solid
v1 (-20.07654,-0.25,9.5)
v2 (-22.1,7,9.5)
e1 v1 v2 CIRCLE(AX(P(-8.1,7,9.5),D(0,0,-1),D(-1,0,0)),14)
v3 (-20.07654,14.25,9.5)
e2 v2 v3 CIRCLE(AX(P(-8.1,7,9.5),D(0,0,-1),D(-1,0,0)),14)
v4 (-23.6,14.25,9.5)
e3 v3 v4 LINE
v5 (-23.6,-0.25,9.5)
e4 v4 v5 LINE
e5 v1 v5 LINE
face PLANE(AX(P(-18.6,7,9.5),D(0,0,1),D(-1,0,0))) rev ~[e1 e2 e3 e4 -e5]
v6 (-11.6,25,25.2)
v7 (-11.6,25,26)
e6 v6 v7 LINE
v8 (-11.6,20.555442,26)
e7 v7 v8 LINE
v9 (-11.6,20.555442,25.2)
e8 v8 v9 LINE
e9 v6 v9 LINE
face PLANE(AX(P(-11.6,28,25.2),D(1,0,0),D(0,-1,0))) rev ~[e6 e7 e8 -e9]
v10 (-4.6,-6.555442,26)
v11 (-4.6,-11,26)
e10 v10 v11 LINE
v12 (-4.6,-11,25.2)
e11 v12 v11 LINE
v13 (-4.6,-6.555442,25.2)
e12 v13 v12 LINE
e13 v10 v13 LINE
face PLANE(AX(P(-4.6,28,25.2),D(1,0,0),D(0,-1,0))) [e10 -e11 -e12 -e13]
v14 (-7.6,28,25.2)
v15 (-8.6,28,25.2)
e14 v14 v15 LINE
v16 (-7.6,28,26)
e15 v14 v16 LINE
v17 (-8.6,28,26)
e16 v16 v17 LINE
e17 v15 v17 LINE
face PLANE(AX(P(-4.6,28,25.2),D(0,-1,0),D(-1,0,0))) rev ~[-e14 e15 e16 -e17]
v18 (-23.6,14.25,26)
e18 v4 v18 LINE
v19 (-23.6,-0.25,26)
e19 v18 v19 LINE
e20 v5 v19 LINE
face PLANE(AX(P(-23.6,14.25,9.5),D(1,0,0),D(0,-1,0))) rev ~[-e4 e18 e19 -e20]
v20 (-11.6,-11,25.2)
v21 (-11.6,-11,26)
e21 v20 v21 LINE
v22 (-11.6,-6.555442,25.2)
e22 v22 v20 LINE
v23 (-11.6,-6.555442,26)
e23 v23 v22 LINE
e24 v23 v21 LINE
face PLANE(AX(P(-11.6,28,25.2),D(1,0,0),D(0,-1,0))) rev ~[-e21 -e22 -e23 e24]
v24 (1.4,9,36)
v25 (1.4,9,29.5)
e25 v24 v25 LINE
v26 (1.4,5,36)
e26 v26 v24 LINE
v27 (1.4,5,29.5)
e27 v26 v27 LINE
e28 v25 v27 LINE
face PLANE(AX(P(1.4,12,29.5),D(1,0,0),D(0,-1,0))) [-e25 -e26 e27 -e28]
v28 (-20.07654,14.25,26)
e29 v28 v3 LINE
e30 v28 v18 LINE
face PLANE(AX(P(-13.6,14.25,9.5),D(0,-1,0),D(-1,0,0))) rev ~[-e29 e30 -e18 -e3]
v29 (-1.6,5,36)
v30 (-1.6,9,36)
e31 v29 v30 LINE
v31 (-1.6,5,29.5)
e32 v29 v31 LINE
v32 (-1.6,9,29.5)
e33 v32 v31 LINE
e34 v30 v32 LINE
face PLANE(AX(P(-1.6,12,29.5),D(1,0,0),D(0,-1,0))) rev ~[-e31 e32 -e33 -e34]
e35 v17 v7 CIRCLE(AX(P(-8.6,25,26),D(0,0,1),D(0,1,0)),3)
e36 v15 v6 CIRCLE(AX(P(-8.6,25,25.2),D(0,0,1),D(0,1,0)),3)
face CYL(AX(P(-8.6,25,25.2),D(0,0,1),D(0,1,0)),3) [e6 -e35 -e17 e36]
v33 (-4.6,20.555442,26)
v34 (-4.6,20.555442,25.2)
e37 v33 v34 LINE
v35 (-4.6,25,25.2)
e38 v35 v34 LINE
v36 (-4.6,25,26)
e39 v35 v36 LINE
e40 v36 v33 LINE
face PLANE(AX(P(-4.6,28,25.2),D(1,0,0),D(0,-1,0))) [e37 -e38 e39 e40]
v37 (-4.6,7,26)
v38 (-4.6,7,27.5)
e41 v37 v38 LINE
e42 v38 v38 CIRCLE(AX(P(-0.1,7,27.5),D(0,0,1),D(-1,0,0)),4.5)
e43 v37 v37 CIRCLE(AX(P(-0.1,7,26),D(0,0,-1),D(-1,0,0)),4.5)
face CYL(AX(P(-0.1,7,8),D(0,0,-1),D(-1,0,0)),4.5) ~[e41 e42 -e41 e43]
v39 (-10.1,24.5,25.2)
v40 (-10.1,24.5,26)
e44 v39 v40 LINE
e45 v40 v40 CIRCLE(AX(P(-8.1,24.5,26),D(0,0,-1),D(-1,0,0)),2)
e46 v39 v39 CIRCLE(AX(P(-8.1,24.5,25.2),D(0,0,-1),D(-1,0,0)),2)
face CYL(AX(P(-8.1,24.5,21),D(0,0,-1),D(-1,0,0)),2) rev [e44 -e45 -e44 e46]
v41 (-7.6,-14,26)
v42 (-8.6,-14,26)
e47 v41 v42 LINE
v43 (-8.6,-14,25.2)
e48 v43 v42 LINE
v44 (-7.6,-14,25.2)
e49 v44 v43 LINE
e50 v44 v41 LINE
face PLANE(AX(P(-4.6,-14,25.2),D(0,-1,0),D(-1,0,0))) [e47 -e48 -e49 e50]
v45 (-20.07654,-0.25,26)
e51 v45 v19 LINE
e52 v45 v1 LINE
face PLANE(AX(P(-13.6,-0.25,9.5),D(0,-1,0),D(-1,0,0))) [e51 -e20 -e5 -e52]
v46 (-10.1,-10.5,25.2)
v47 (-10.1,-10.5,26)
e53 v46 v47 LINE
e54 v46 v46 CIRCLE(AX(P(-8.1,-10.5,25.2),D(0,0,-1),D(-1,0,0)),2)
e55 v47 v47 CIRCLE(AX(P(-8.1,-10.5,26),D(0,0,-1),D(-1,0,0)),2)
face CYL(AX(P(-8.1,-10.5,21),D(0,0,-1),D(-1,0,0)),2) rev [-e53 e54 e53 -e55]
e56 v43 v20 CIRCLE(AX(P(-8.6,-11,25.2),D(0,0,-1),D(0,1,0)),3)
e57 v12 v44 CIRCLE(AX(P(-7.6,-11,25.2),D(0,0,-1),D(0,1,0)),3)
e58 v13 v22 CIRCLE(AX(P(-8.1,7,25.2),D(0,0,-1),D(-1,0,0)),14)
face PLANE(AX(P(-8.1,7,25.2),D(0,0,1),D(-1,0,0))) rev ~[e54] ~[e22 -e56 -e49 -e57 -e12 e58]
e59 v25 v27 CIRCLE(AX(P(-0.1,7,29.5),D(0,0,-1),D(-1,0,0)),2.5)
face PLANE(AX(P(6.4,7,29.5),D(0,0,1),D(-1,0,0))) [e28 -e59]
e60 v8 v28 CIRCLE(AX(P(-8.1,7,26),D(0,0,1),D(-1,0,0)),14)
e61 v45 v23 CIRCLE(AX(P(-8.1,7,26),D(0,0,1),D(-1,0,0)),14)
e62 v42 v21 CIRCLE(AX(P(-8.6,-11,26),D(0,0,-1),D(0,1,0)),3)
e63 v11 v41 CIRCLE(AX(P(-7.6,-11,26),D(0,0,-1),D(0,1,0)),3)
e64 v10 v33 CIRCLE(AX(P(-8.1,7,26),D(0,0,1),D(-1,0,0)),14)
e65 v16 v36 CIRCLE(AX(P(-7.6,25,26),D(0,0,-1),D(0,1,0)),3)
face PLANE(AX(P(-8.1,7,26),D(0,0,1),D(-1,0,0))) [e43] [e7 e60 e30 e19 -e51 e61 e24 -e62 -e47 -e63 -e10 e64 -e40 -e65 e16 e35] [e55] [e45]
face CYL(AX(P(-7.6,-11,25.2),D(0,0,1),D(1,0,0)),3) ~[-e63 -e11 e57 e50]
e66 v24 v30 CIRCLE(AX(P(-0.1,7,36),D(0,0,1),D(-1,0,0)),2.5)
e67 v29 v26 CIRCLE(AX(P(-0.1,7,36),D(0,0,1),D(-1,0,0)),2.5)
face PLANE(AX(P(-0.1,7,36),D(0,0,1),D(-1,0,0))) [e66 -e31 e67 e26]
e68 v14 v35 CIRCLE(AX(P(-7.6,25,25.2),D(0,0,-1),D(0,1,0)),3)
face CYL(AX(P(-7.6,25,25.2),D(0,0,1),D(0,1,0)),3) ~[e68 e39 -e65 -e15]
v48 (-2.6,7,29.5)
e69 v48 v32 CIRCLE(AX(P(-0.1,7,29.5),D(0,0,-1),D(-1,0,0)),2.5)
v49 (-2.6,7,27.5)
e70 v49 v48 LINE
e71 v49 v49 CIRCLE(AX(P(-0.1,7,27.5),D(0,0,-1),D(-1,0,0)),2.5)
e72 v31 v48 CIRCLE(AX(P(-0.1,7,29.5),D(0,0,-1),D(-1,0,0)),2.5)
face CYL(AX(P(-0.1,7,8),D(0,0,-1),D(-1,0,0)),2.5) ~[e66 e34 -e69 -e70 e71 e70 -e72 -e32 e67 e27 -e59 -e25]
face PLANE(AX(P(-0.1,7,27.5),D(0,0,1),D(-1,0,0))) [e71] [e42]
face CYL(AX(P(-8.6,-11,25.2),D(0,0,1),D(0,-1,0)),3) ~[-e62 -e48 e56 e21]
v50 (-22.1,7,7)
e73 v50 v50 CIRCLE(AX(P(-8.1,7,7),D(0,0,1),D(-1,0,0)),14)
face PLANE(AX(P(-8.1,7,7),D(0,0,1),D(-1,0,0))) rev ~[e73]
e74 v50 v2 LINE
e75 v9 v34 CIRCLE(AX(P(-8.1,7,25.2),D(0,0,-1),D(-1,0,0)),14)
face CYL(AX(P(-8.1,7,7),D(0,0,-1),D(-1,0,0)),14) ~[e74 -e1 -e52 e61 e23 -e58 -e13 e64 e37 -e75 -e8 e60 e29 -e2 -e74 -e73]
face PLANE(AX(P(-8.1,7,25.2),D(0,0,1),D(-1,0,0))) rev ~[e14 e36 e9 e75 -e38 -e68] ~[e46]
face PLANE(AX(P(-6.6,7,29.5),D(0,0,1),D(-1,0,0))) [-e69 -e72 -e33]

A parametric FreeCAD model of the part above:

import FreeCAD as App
import Part
import Sketcher

V = App.Vector
Q = App.Units.Quantity


def edges_at(feature, points):
    """Names of the edges that pass closest to the given points."""
    edges = feature.Shape.Edges
    near = lambda p: min(range(len(edges)), key=lambda i: edges[i].distToShape(Part.Vertex(*p))[0])
    return sorted({f"Edge{near(p) + 1}" for p in points})


def add_polygon(sketch, points):
    """Adds a closed chain of lines whose ends are joined by coincident constraints."""
    first, n = sketch.GeometryCount, len(points)
    for a, b in zip(points, points[1:] + points[:1]):
        sketch.addGeometry(Part.LineSegment(App.Vector(*a, 0), App.Vector(*b, 0)), False)
    for i in range(n):
        sketch.addConstraint(Sketcher.Constraint("Coincident", first + i, 2, first + (i + 1) % n, 1))

doc = App.newDocument("Part")
params = doc.addObject("Spreadsheet::Sheet", "Params")
for row, (alias, value) in enumerate([
    ("sketch1_diameter", "4 mm"),
    ("pad1_length", "20 mm"),
    ("sketch2_diameter", "4 mm"),
    ("pad2_length", "20 mm"),
    ("sketch3_diameter", "9 mm"),
    ("pad3_length", "19.5 mm"),
    ("sketch4_width", "7 mm"),
    ("sketch4_height", "42 mm"),
    ("pad4_length", "0.8 mm"),
    ("fillet_radius", "3 mm"),
    ("fillet2_radius", "3 mm"),
    ("fillet3_radius", "3 mm"),
    ("fillet4_radius", "3 mm"),
    ("sketch5_width", "10 mm"),
    ("sketch5_height", "14.5 mm"),
    ("pad5_length", "16.5 mm"),
    ("sketch6_diameter", "28 mm"),
    ("pad6_length", "19 mm"),
    ("sketch7_width", "10 mm"),
    ("pad7_length", "10 mm"),
    ("sketch8_width", "10 mm"),
    ("pad8_length", "10 mm"),
    ("sketch9_diameter", "5 mm"),
    ("pad9_length", "28 mm"),
], start=1):
    params.set(f"A{row}", alias)
    params.set(f"B{row}", "=" + value)
    params.setAlias(f"B{row}", alias)

body = doc.addObject("PartDesign::Body", "Body")

# Sketch on XY plane
sketch1 = doc.addObject("Sketcher::SketchObject", "Sketch")
body.addObject(sketch1)
sketch1.AttachmentSupport = (doc.XY_Plane, [""])
sketch1.MapMode = "FlatFace"
sketch1.AttachmentOffset = App.Placement(V(0, 0, 14), App.Rotation())
sketch1.addGeometry(Part.Circle(V(0, -17.5, 0), V(0, 0, 1), 2), False)
sketch1.addConstraint([
    Sketcher.Constraint("PointOnObject", 0, 3, -2),
    Sketcher.Constraint("Diameter", 0, Q("4 mm")),
    Sketcher.Constraint("DistanceY", 0, 3, -1, 1, Q("17.5 mm")),
])
sketch1.setExpression("Constraints[1]", "Params.sketch1_diameter")
pad1 = doc.addObject("PartDesign::Pad", "Pad")
body.addObject(pad1)
pad1.Profile = sketch1
pad1.setExpression("Length", "Params.pad1_length")
body2 = doc.addObject("PartDesign::Body", "Body001")

# Sketch on XY plane
sketch2 = doc.addObject("Sketcher::SketchObject", "Sketch001")
body2.addObject(sketch2)
sketch2.AttachmentSupport = (doc.getObject("XY_Plane001"), [""])
sketch2.MapMode = "FlatFace"
sketch2.AttachmentOffset = App.Placement(V(0, 0, 14), App.Rotation())
sketch2.addGeometry(Part.Circle(V(0, 17.5, 0), V(0, 0, 1), 2), False)
sketch2.addConstraint([
    Sketcher.Constraint("PointOnObject", 0, 3, -2),
    Sketcher.Constraint("Diameter", 0, Q("4 mm")),
    Sketcher.Constraint("DistanceY", -1, 1, 0, 3, Q("17.5 mm")),
])
sketch2.setExpression("Constraints[1]", "Params.sketch2_diameter")
pad2 = doc.addObject("PartDesign::Pad", "Pad001")
body2.addObject(pad2)
pad2.Profile = sketch2
pad2.setExpression("Length", "Params.pad2_length")
body3 = doc.addObject("PartDesign::Body", "Body002")

# Sketch on XY plane
sketch3 = doc.addObject("Sketcher::SketchObject", "Sketch002")
body3.addObject(sketch3)
sketch3.AttachmentSupport = (doc.getObject("XY_Plane002"), [""])
sketch3.MapMode = "FlatFace"
sketch3.AttachmentOffset = App.Placement(V(0, 0, 1), App.Rotation())
sketch3.addGeometry(Part.Circle(V(-8, 0, 0), V(0, 0, 1), 4.5), False)
sketch3.addConstraint([
    Sketcher.Constraint("PointOnObject", 0, 3, -1),
    Sketcher.Constraint("Diameter", 0, Q("9 mm")),
    Sketcher.Constraint("DistanceX", 0, 3, -1, 1, Q("8 mm")),
])
sketch3.setExpression("Constraints[1]", "Params.sketch3_diameter")
pad3 = doc.addObject("PartDesign::Pad", "Pad002")
body3.addObject(pad3)
pad3.Profile = sketch3
pad3.setExpression("Length", "Params.pad3_length")
body4 = doc.addObject("PartDesign::Body", "Body003")

# Sketch on XY plane
sketch4 = doc.addObject("Sketcher::SketchObject", "Sketch003")
body4.addObject(sketch4)
sketch4.AttachmentSupport = (doc.getObject("XY_Plane003"), [""])
sketch4.MapMode = "FlatFace"
sketch4.AttachmentOffset = App.Placement(V(0, 0, 18.2), App.Rotation())
add_polygon(sketch4, [(-4, 21), (-4, -21), (4, -21), (4, 21)])  # lines 0-3
sketch4.addConstraint([
    Sketcher.Constraint("Vertical", 0),
    Sketcher.Constraint("Horizontal", 1),
    Sketcher.Constraint("Vertical", 2),
    Sketcher.Constraint("Horizontal", 3),
    Sketcher.Constraint("Symmetric", 0, 2, 2, 2, -1, 1),
    Sketcher.Constraint("DistanceX", 1, 1, 1, 2, Q("7 mm")),
    Sketcher.Constraint("DistanceY", 0, 2, 0, 1, Q("42 mm")),
])
sketch4.setExpression("Constraints[9]", "Params.sketch4_width")
sketch4.setExpression("Constraints[10]", "Params.sketch4_height")
pad4 = doc.addObject("PartDesign::Pad", "Pad003")
body4.addObject(pad4)
pad4.Profile = sketch4
pad4.setExpression("Length", "Params.pad4_length")
doc.recompute()

fillet = doc.addObject("PartDesign::Fillet", "Fillet")
body4.addObject(fillet)
fillet.Base = (pad4, edges_at(pad4, [(3.5, -21, 18.6)]))
fillet.setExpression("Radius", "Params.fillet_radius")
doc.recompute()

fillet2 = doc.addObject("PartDesign::Fillet", "Fillet001")
body4.addObject(fillet2)
fillet2.Base = (fillet, edges_at(fillet, [(-3.5, -21, 18.6)]))
fillet2.setExpression("Radius", "Params.fillet2_radius")
doc.recompute()

fillet3 = doc.addObject("PartDesign::Fillet", "Fillet002")
body4.addObject(fillet3)
fillet3.Base = (fillet2, edges_at(fillet2, [(-3.5, 21, 18.6)]))
fillet3.setExpression("Radius", "Params.fillet3_radius")
doc.recompute()

fillet4 = doc.addObject("PartDesign::Fillet", "Fillet003")
body4.addObject(fillet4)
fillet4.Base = (fillet3, edges_at(fillet3, [(3.5, 21, 18.6)]))
fillet4.setExpression("Radius", "Params.fillet4_radius")
body5 = doc.addObject("PartDesign::Body", "Body004")

# Sketch on XY plane
sketch5 = doc.addObject("Sketcher::SketchObject", "Sketch004")
body5.addObject(sketch5)
sketch5.AttachmentSupport = (doc.getObject("XY_Plane004"), [""])
sketch5.MapMode = "FlatFace"
sketch5.AttachmentOffset = App.Placement(V(0, 0, 2.5), App.Rotation())
add_polygon(sketch5, [(6, 7), (6, -7), (16, -7), (16, 7)])  # lines 0-3
sketch5.addConstraint([
    Sketcher.Constraint("Vertical", 0),
    Sketcher.Constraint("Horizontal", 1),
    Sketcher.Constraint("Vertical", 2),
    Sketcher.Constraint("Horizontal", 3),
    Sketcher.Constraint("DistanceX", 1, 1, 1, 2, Q("10 mm")),
    Sketcher.Constraint("DistanceY", 0, 2, 0, 1, Q("14.5 mm")),
    Sketcher.Constraint("DistanceX", -1, 1, 0, 2, Q("5.5 mm")),
    Sketcher.Constraint("DistanceY", 0, 2, -1, 1, Q("7.25 mm")),
])
sketch5.setExpression("Constraints[8]", "Params.sketch5_width")
sketch5.setExpression("Constraints[9]", "Params.sketch5_height")
pad5 = doc.addObject("PartDesign::Pad", "Pad004")
body5.addObject(pad5)
pad5.Profile = sketch5
pad5.setExpression("Length", "Params.pad5_length")
body6 = doc.addObject("PartDesign::Body", "Body005")

# Sketch on XY plane
sketch6 = doc.addObject("Sketcher::SketchObject", "Sketch005")
body6.addObject(sketch6)
sketch6.AttachmentSupport = (doc.getObject("XY_Plane005"), [""])
sketch6.MapMode = "FlatFace"
sketch6.addGeometry(Part.Circle(V(0, 0, 0), V(0, 0, 1), 14), False)
sketch6.addConstraint([
    Sketcher.Constraint("Coincident", 0, 3, -1, 1),
    Sketcher.Constraint("Diameter", 0, Q("28 mm")),
])
sketch6.setExpression("Constraints[1]", "Params.sketch6_diameter")
pad6 = doc.addObject("PartDesign::Pad", "Pad005")
body6.addObject(pad6)
pad6.Profile = sketch6
pad6.setExpression("Length", "Params.pad6_length")
doc.recompute()

boolean = doc.addObject("PartDesign::Boolean", "Boolean")
body6.addObject(boolean)
boolean.Type = "Fuse"
boolean.addObjects([body5])
doc.recompute()

boolean2 = doc.addObject("PartDesign::Boolean", "Boolean001")
body6.addObject(boolean2)
boolean2.Type = "Fuse"
boolean2.addObjects([body4])
doc.recompute()

boolean3 = doc.addObject("PartDesign::Boolean", "Boolean002")
body6.addObject(boolean3)
boolean3.Type = "Fuse"
boolean3.addObjects([body3])
doc.recompute()

boolean4 = doc.addObject("PartDesign::Boolean", "Boolean003")
body6.addObject(boolean4)
boolean4.Type = "Cut"
boolean4.addObjects([body2])
doc.recompute()

boolean5 = doc.addObject("PartDesign::Boolean", "Boolean004")
body6.addObject(boolean5)
boolean5.Type = "Cut"
boolean5.addObjects([body])
body7 = doc.addObject("PartDesign::Body", "Body006")

# Sketch on XY plane
sketch7 = doc.addObject("Sketcher::SketchObject", "Sketch006")
body7.addObject(sketch7)
sketch7.AttachmentSupport = (doc.getObject("XY_Plane006"), [""])
sketch7.MapMode = "FlatFace"
sketch7.AttachmentOffset = App.Placement(V(0, 0, 22.5), App.Rotation())
add_polygon(sketch7, [(-6, 5), (-6, -5), (4, -5), (4, 5)])  # lines 0-3
sketch7.addConstraint([
    Sketcher.Constraint("Vertical", 0),
    Sketcher.Constraint("Horizontal", 1),
    Sketcher.Constraint("Vertical", 2),
    Sketcher.Constraint("Horizontal", 3),
    Sketcher.Constraint("Equal", 3, 0),
    Sketcher.Constraint("DistanceX", 1, 1, 1, 2, Q("10 mm")),
    Sketcher.Constraint("DistanceY", 0, 2, -1, 1, Q("5 mm")),
    Sketcher.Constraint("DistanceX", 0, 2, -1, 1, Q("6.5 mm")),
])
sketch7.setExpression("Constraints[9]", "Params.sketch7_width")
pad7 = doc.addObject("PartDesign::Pad", "Pad006")
body7.addObject(pad7)
pad7.Profile = sketch7
pad7.setExpression("Length", "Params.pad7_length")
body8 = doc.addObject("PartDesign::Body", "Body007")

# Sketch on XY plane
sketch8 = doc.addObject("Sketcher::SketchObject", "Sketch007")
body8.addObject(sketch8)
sketch8.AttachmentSupport = (doc.getObject("XY_Plane007"), [""])
sketch8.MapMode = "FlatFace"
sketch8.AttachmentOffset = App.Placement(V(0, 0, 22.5), App.Rotation())
add_polygon(sketch8, [(-20, 5), (-20, -5), (-10, -5), (-10, 5)])  # lines 0-3
sketch8.addConstraint([
    Sketcher.Constraint("Vertical", 0),
    Sketcher.Constraint("Horizontal", 1),
    Sketcher.Constraint("Vertical", 2),
    Sketcher.Constraint("Horizontal", 3),
    Sketcher.Constraint("Equal", 3, 0),
    Sketcher.Constraint("DistanceX", 1, 1, 1, 2, Q("10 mm")),
    Sketcher.Constraint("DistanceY", 0, 2, -1, 1, Q("5 mm")),
    Sketcher.Constraint("DistanceX", 0, 2, -1, 1, Q("19.5 mm")),
])
sketch8.setExpression("Constraints[9]", "Params.sketch8_width")
pad8 = doc.addObject("PartDesign::Pad", "Pad007")
body8.addObject(pad8)
pad8.Profile = sketch8
pad8.setExpression("Length", "Params.pad8_length")
body9 = doc.addObject("PartDesign::Body", "Body008")

# Sketch on XY plane
sketch9 = doc.addObject("Sketcher::SketchObject", "Sketch008")
body9.addObject(sketch9)
sketch9.AttachmentSupport = (doc.getObject("XY_Plane008"), [""])
sketch9.MapMode = "FlatFace"
sketch9.AttachmentOffset = App.Placement(V(0, 0, 1), App.Rotation())
sketch9.addGeometry(Part.Circle(V(-8, 0, 0), V(0, 0, 1), 2.5), False)
sketch9.addConstraint([
    Sketcher.Constraint("PointOnObject", 0, 3, -1),
    Sketcher.Constraint("Diameter", 0, Q("5 mm")),
    Sketcher.Constraint("DistanceX", 0, 3, -1, 1, Q("8 mm")),
])
sketch9.setExpression("Constraints[1]", "Params.sketch9_diameter")
pad9 = doc.addObject("PartDesign::Pad", "Pad008")
body9.addObject(pad9)
pad9.Profile = sketch9
pad9.setExpression("Length", "Params.pad9_length")
doc.recompute()

boolean6 = doc.addObject("PartDesign::Boolean", "Boolean005")
body9.addObject(boolean6)
boolean6.Type = "Cut"
boolean6.addObjects([body8])
doc.recompute()

boolean7 = doc.addObject("PartDesign::Boolean", "Boolean006")
body9.addObject(boolean7)
boolean7.Type = "Cut"
boolean7.addObjects([body7])
doc.recompute()

boolean8 = doc.addObject("PartDesign::Boolean", "Boolean007")
body9.addObject(boolean8)
boolean8.Type = "Fuse"
boolean8.addObjects([body6])
body10 = doc.addObject("PartDesign::Body", "Body009")
doc.recompute()

body9.Placement = App.Placement(V(-8.1, 7, 7), App.Rotation(V(0, 0, 1), 180))
boolean9 = doc.addObject("PartDesign::Boolean", "Boolean008")
body10.addObject(boolean9)
boolean9.Type = "Fuse"
boolean9.addObjects([body9])

doc.recompute()
